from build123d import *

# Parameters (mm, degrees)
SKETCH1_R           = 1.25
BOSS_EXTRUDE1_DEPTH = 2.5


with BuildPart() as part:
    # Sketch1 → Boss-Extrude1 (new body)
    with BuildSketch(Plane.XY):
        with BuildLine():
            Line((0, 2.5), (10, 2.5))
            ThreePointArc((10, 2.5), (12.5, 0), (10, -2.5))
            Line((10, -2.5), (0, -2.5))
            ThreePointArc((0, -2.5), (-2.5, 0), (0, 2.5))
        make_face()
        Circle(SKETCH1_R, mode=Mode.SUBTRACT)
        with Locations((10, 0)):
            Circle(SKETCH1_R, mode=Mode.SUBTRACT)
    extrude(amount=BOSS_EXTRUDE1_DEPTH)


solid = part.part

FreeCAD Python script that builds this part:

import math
import FreeCAD as App
import Part
import Sketcher
from FreeCAD import Vector

doc = App.newDocument("Part")
body = doc.addObject("PartDesign::Body", "Body")

sketch1 = body.newObject("Sketcher::SketchObject", "Sketch")
sketch1.AttachmentSupport = (doc.getObject("XY_Plane"), [""])
sketch1.MapMode = "FlatFace"
sketch1.addGeometry(Part.LineSegment(Vector(10, 2.5, 0), Vector(0, 2.5, 0)), False)
sketch1.addGeometry(Part.ArcOfCircle(Part.Circle(Vector(0, 0, 0), Vector(0, 0, 1), 2.5), math.radians(90), math.radians(270)), False)
sketch1.addGeometry(Part.LineSegment(Vector(0, -2.5, 0), Vector(10, -2.5, 0)), False)
sketch1.addGeometry(Part.ArcOfCircle(Part.Circle(Vector(10, 0, 0), Vector(0, 0, 1), 2.5), math.radians(-90), math.radians(90)), False)
sketch1.addGeometry(Part.Circle(Vector(10, 0, 0), Vector(0, 0, 1), 1.2), False)
sketch1.addGeometry(Part.Circle(Vector(0, 0, 0), Vector(0, 0, 1), 1.2), False)
sketch1.addConstraint(Sketcher.Constraint("Tangent", 0, 2, 1, 1))
sketch1.addConstraint(Sketcher.Constraint("Tangent", 1, 2, 2, 1))
sketch1.addConstraint(Sketcher.Constraint("Tangent", 2, 2, 3, 1))
sketch1.addConstraint(Sketcher.Constraint("Tangent", 3, 2, 0, 1))
sketch1.addConstraint(Sketcher.Constraint("Horizontal", 0))
sketch1.addConstraint(Sketcher.Constraint("Horizontal", 2))
sketch1.addConstraint(Sketcher.Constraint("Coincident", 1, 3, -1, 1))
sketch1.addConstraint(Sketcher.Constraint("Coincident", 5, 3, -1, 1))
sketch1.addConstraint(Sketcher.Constraint("Coincident", 4, 3, 3, 3))
sketch1.addConstraint(Sketcher.Constraint("Equal", 4, 5))
sketch1.addConstraint(Sketcher.Constraint("Diameter", 4, 2.5))
sketch1.addConstraint(Sketcher.Constraint("Radius", 1, 2.5))
sketch1.addConstraint(Sketcher.Constraint("DistanceX", 0, 2, 0, 1, 10.0))
pad1 = body.newObject("PartDesign::Pad", "Pad")
pad1.Profile = sketch1
pad1.Length = 2.5

doc.recompute()
